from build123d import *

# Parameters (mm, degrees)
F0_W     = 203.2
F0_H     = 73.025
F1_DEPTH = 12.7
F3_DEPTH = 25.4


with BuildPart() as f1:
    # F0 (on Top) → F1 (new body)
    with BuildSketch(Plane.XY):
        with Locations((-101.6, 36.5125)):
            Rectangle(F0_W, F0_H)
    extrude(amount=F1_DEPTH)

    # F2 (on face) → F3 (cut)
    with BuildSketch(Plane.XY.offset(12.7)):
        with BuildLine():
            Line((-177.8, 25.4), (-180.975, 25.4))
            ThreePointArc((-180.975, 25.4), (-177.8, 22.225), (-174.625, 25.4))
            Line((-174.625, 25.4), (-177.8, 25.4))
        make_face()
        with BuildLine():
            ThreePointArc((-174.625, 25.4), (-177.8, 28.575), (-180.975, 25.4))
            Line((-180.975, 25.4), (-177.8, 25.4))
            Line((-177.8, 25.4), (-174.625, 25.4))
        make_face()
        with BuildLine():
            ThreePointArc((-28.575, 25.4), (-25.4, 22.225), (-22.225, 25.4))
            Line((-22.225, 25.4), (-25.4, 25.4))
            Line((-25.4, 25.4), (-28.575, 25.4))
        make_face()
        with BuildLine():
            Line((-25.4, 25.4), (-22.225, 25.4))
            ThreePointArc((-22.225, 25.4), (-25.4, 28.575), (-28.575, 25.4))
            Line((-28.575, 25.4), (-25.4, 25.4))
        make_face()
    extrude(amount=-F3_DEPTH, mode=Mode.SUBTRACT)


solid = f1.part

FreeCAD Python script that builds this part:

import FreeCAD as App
import Part
import Sketcher

V = App.Vector
Q = App.Units.Quantity

doc = App.newDocument("Part")
body = doc.addObject("PartDesign::Body", "Body")

# Sketch on XY plane
sketch1 = body.newObject("Sketcher::SketchObject", "Sketch")
sketch1.AttachmentSupport = (doc.getObject("XY_Plane"), [""])
sketch1.MapMode = "FlatFace"
sketch1.addGeometry(Part.LineSegment(V(-203, 73, 0), V(-203, 0, 0)), False)
sketch1.addGeometry(Part.LineSegment(V(-203, 0, 0), V(0, 0, 0)), False)
sketch1.addGeometry(Part.LineSegment(V(0, 0, 0), V(0, 73, 0)), False)
sketch1.addGeometry(Part.LineSegment(V(0, 73, 0), V(-203, 73, 0)), False)
sketch1.addConstraint(Sketcher.Constraint("Coincident", 0, 2, 1, 1))
sketch1.addConstraint(Sketcher.Constraint("Coincident", 1, 2, 2, 1))
sketch1.addConstraint(Sketcher.Constraint("Coincident", 2, 2, 3, 1))
sketch1.addConstraint(Sketcher.Constraint("Coincident", 3, 2, 0, 1))
sketch1.addConstraint(Sketcher.Constraint("Vertical", 0))
sketch1.addConstraint(Sketcher.Constraint("Horizontal", 1))
sketch1.addConstraint(Sketcher.Constraint("Vertical", 2))
sketch1.addConstraint(Sketcher.Constraint("Horizontal", 3))
sketch1.addConstraint(Sketcher.Constraint("Coincident", 1, 2, -1, 1))
sketch1.addConstraint(Sketcher.Constraint("DistanceX", 1, 1, 1, 2, Q("8 in")))
sketch1.addConstraint(Sketcher.Constraint("DistanceY", 0, 2, 0, 1, Q("2.875 in")))
pad1 = body.newObject("PartDesign::Pad", "Pad")
pad1.Profile = sketch1
pad1.Length = Q("0.5 in")

# Sketch on XY plane
sketch2 = body.newObject("Sketcher::SketchObject", "Sketch001")
sketch2.AttachmentSupport = (doc.getObject("XY_Plane"), [""])
sketch2.MapMode = "FlatFace"
sketch2.AttachmentOffset = App.Placement(V(0, 0, 0.5 * 25.4), App.Rotation())
sketch2.addGeometry(Part.Circle(V(-177.8, 25.4, 0), V(0, 0, 1), 3.2), False)
sketch2.addGeometry(Part.Circle(V(-25.4, 25.4, 0), V(0, 0, 1), 3.2), False)
sketch2.addConstraint(Sketcher.Constraint("Equal", 0, 1))
sketch2.addConstraint(Sketcher.Constraint("Horizontal", 0, 3, 1, 3))
sketch2.addConstraint(Sketcher.Constraint("Diameter", 0, Q("0.25 in")))
sketch2.addConstraint(Sketcher.Constraint("DistanceX", 0, 3, -1, 1, Q("7 in")))
sketch2.addConstraint(Sketcher.Constraint("DistanceY", -1, 1, 0, 3, Q("1 in")))
sketch2.addConstraint(Sketcher.Constraint("DistanceX", 1, 3, -1, 1, Q("1 in")))
pocket1 = body.newObject("PartDesign::Pocket", "Pocket")
pocket1.Profile = sketch2
pocket1.Length = Q("1 in")

doc.recompute()
